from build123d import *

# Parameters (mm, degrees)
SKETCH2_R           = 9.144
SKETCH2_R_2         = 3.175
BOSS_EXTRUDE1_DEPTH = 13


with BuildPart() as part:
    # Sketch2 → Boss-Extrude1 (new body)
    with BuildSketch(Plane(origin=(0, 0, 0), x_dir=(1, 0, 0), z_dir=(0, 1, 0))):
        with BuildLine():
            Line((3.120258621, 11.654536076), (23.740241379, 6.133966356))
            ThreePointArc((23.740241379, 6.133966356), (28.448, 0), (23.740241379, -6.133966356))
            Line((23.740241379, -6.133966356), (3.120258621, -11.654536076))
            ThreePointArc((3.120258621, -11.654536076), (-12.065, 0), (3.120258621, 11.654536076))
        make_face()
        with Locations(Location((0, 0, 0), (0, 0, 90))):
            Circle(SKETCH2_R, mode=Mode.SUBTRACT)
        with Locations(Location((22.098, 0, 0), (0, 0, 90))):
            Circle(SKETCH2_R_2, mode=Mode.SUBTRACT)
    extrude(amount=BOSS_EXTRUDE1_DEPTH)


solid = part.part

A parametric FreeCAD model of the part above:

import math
import FreeCAD as App
import Part
import Sketcher

V = App.Vector
Q = App.Units.Quantity

doc = App.newDocument("Part")
body = doc.addObject("PartDesign::Body", "Body")

# Sketch on XZ plane
sketch1 = doc.addObject("Sketcher::SketchObject", "Sketch")
body.addObject(sketch1)
sketch1.AttachmentSupport = (doc.XZ_Plane, [""])
sketch1.MapMode = "FlatFace"
sketch1.addGeometry([
    Part.LineSegment(V(23.740241, -6.133966, 0), V(3.120259, -11.654536, 0)),  # 0
    Part.ArcOfCircle(Part.Circle(V(0, 0, 0), V(0, 0, 1), 12.065), math.radians(75.011766), math.radians(284.988234)),  # 1
    Part.LineSegment(V(3.120259, 11.654536, 0), V(23.740241, 6.133966, 0)),  # 2
    Part.ArcOfCircle(Part.Circle(V(22.098, 0, 0), V(0, 0, 1), 6.35), math.radians(-75.011766), math.radians(75.011766)),  # 3
    Part.Circle(V(22.098, 0, 0), V(0, 0, 1), 3.175),  # 4
    Part.Circle(V(0, 0, 0), V(0, 0, 1), 9.144),  # 5
], False)
sketch1.addConstraint([
    Sketcher.Constraint("Tangent", 0, 2, 1, 2),
    Sketcher.Constraint("Tangent", 1, 1, 2, 1),
    Sketcher.Constraint("Tangent", 2, 2, 3, 2),
    Sketcher.Constraint("Tangent", 3, 1, 0, 1),
    Sketcher.Constraint("Coincident", 1, 3, -1, 1),
    Sketcher.Constraint("Coincident", 5, 3, -1, 1),
    Sketcher.Constraint("Coincident", 4, 3, 3, 3),
    Sketcher.Constraint("PointOnObject", 3, 3, -1),
    Sketcher.Constraint("Diameter", 4, Q("0.25 in")),
    Sketcher.Constraint("Diameter", 5, Q("0.72 in")),
    Sketcher.Constraint("Radius", 3, Q("0.25 in")),
    Sketcher.Constraint("Radius", 1, Q("0.475 in")),
    Sketcher.Constraint("DistanceX", -1, 1, 3, 3, Q("0.87 in")),
])
pad1 = doc.addObject("PartDesign::Pad", "Pad")
body.addObject(pad1)
pad1.Profile = sketch1
pad1.Length = 13
pad1.Reversed = True

doc.recompute()
